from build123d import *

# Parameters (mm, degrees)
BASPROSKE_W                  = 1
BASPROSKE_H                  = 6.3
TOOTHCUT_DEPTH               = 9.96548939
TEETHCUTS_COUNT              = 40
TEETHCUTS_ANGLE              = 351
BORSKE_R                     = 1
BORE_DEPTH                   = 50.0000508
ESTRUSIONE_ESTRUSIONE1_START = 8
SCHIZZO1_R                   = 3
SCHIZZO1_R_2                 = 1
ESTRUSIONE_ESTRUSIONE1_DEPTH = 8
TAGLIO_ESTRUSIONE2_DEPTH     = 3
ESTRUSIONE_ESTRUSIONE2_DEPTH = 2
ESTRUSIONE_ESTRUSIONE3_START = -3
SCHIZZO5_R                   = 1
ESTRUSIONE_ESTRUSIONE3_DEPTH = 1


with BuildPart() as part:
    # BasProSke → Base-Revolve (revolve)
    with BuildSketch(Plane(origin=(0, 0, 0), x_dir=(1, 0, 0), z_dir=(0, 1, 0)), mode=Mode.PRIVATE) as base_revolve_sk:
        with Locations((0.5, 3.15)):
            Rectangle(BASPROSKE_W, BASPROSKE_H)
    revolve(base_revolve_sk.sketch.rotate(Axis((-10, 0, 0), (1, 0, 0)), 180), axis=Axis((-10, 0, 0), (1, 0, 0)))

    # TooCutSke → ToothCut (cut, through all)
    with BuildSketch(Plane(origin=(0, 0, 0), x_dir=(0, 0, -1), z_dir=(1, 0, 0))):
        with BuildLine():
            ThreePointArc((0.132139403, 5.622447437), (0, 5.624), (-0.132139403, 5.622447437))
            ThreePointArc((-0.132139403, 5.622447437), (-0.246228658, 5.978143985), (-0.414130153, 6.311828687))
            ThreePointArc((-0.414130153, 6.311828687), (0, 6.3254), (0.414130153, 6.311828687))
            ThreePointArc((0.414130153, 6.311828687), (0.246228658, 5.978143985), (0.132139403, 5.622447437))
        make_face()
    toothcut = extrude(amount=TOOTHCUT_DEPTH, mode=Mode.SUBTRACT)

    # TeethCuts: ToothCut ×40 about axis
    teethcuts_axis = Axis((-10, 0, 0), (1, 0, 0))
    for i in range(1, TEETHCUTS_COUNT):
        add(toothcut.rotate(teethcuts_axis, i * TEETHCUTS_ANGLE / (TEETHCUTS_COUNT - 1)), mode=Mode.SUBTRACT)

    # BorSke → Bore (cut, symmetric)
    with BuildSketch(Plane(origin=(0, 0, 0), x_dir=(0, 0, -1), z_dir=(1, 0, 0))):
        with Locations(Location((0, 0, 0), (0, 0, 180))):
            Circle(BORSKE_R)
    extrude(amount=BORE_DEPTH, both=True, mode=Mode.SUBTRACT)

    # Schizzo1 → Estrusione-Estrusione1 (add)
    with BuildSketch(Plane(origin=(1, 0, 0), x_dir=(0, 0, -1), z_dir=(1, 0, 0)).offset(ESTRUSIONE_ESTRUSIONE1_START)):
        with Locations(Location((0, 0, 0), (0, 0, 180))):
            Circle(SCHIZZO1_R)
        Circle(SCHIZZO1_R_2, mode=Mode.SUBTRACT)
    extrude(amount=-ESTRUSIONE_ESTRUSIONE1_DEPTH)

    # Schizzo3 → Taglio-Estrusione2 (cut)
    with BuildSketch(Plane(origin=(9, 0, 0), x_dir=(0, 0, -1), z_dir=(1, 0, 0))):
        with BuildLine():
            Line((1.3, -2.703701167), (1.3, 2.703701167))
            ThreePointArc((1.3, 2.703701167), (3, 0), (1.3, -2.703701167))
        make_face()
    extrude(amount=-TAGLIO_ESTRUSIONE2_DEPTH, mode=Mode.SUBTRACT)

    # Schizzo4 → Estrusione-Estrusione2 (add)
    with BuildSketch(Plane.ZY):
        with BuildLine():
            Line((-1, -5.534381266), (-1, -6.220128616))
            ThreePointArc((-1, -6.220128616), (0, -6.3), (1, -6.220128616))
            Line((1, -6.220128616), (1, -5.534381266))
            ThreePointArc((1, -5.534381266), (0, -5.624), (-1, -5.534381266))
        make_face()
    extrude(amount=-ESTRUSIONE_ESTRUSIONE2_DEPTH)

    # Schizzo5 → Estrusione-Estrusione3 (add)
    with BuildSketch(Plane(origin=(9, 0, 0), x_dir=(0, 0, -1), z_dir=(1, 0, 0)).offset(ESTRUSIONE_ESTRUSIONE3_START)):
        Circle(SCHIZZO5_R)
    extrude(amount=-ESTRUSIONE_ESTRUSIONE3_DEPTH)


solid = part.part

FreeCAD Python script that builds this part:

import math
import FreeCAD as App
import Part
import Sketcher

V = App.Vector


def add_polygon(sketch, points):
    """Adds a closed chain of lines whose ends are joined by coincident constraints."""
    first, n = sketch.GeometryCount, len(points)
    for a, b in zip(points, points[1:] + points[:1]):
        sketch.addGeometry(Part.LineSegment(App.Vector(*a, 0), App.Vector(*b, 0)), False)
    for i in range(n):
        sketch.addConstraint(Sketcher.Constraint("Coincident", first + i, 2, first + (i + 1) % n, 1))

doc = App.newDocument("Part")
params = doc.addObject("Spreadsheet::Sheet", "Params")
for row, (alias, value) in enumerate([
    ("sketch1_width", "1 mm"),
    ("sketch1_height", "6.3 mm"),
    ("revolution_angle", "360 deg"),
    ("sketch2_radius", "2.4 mm"),
    ("sketch3_diameter", "2 mm"),
    ("pocket2_length", "100.000102 mm"),
    ("sketch4_diameter", "6 mm"),
    ("sketch4_diameter2", "2 mm"),
    ("pad1_length", "8 mm"),
    ("sketch5_radius", "3 mm"),
    ("pocket3_length", "3 mm"),
    ("sketch6_radius", "6.3 mm"),
    ("pad2_length", "2 mm"),
    ("sketch7_diameter", "2 mm"),
    ("pad3_length", "1 mm"),
], start=1):
    params.set(f"A{row}", alias)
    params.set(f"B{row}", "=" + value)
    params.setAlias(f"B{row}", alias)

body = doc.addObject("PartDesign::Body", "Body")

# Sketch on XZ plane
sketch1 = doc.addObject("Sketcher::SketchObject", "Sketch")
body.addObject(sketch1)
sketch1.AttachmentSupport = (doc.XZ_Plane, [""])
sketch1.MapMode = "FlatFace"
add_polygon(sketch1, [(0, -6.3), (0, 0), (1, 0), (1, -6.3)])  # lines 0-3
sketch1.addConstraint([
    Sketcher.Constraint("Vertical", 0),
    Sketcher.Constraint("Horizontal", 1),
    Sketcher.Constraint("Vertical", 2),
    Sketcher.Constraint("Horizontal", 3),
    Sketcher.Constraint("Coincident", 0, 2, -1, 1),
    Sketcher.Constraint("DistanceX", 1, 1, 1, 2, 1.0),
    Sketcher.Constraint("DistanceY", 0, 1, 0, 2, 6.3),
])
sketch1.setExpression("Constraints[9]", "Params.sketch1_width")
sketch1.setExpression("Constraints[10]", "Params.sketch1_height")
revolution = doc.addObject("PartDesign::Revolution", "Revolution")
body.addObject(revolution)
revolution.Profile = sketch1
revolution.ReferenceAxis = (sketch1, ["H_Axis"])
revolution.setExpression("Angle", "Params.revolution_angle")

# Sketch on YZ plane
sketch2 = doc.addObject("Sketcher::SketchObject", "Sketch001")
body.addObject(sketch2)
sketch2.AttachmentSupport = (doc.YZ_Plane, [""])
sketch2.MapMode = "FlatFace"
sketch2.addGeometry([
    Part.ArcOfCircle(Part.Circle(V(0, 0, 0), V(0, 0, 1), 5.62), math.radians(-1.35), math.radians(1.35)),
    Part.ArcOfCircle(Part.Circle(V(5.07, -2.47, 0), V(0, 0, 1), 2.4), math.radians(58.83), math.radians(76.68)),
    Part.ArcOfCircle(Part.Circle(V(0, 0, 0), V(0, 0, 1), 6.33), math.radians(-3.75), math.radians(3.75)),
    Part.ArcOfCircle(Part.Circle(V(5.07, 2.47, 0), V(0, 0, 1), 2.4), math.radians(-76.68), math.radians(-58.83)),
], False)
sketch2.addConstraint([
    Sketcher.Constraint("Coincident", 0, 1, 1, 2),
    Sketcher.Constraint("Coincident", 1, 1, 2, 1),
    Sketcher.Constraint("Coincident", 2, 2, 3, 2),
    Sketcher.Constraint("Coincident", 3, 1, 0, 2),
    Sketcher.Constraint("Coincident", 0, 3, -1, 1),
    Sketcher.Constraint("Coincident", 2, 3, -1, 1),
    Sketcher.Constraint("Equal", 1, 3),
    Sketcher.Constraint("Symmetric", 1, 3, 3, 3, -1),
    Sketcher.Constraint("Radius", 1, 2.4),
    Sketcher.Constraint("Radius", 0, 5.624001),
    Sketcher.Constraint("Radius", 2, 6.3254),
    Sketcher.Constraint("DistanceY", 0, 1, -1, 1, 0.132139),
    Sketcher.Constraint("DistanceX", -1, 1, 1, 1, 6.311829),
])
sketch2.setExpression("Constraints[8]", "Params.sketch2_radius")
pocket1 = doc.addObject("PartDesign::Pocket", "Pocket")
body.addObject(pocket1)
pocket1.Profile = sketch2
pocket1.Type = "ThroughAll"
pocket1.Reversed = True
doc.recompute()

polarpattern = doc.addObject("PartDesign::PolarPattern", "PolarPattern")
body.addObject(polarpattern)
polarpattern.Originals = [pocket1]
polarpattern.Axis = (doc.X_Axis, [""])
polarpattern.Angle = 360
polarpattern.Occurrences = 40
body.Tip = polarpattern

# Sketch on YZ plane
sketch3 = doc.addObject("Sketcher::SketchObject", "Sketch002")
body.addObject(sketch3)
sketch3.AttachmentSupport = (doc.YZ_Plane, [""])
sketch3.MapMode = "FlatFace"
sketch3.addGeometry(Part.Circle(V(0, 0, 0), V(0, 0, 1), 1), False)
sketch3.addConstraint([
    Sketcher.Constraint("Coincident", 0, 3, -1, 1),
    Sketcher.Constraint("Diameter", 0, 2.0),
])
sketch3.setExpression("Constraints[1]", "Params.sketch3_diameter")
pocket2 = doc.addObject("PartDesign::Pocket", "Pocket001")
body.addObject(pocket2)
pocket2.Profile = sketch3
pocket2.setExpression("Length", "Params.pocket2_length")
pocket2.Midplane = True

# Sketch on YZ plane
sketch4 = doc.addObject("Sketcher::SketchObject", "Sketch003")
body.addObject(sketch4)
sketch4.AttachmentSupport = (doc.YZ_Plane, [""])
sketch4.MapMode = "FlatFace"
sketch4.AttachmentOffset = App.Placement(V(0, 0, 9), App.Rotation())
sketch4.addGeometry([
    Part.Circle(V(0, 0, 0), V(0, 0, 1), 3),
    Part.Circle(V(0, 0, 0), V(0, 0, 1), 1),
], False)
sketch4.addConstraint([
    Sketcher.Constraint("Coincident", 0, 3, -1, 1),
    Sketcher.Constraint("Coincident", 1, 3, -1, 1),
    Sketcher.Constraint("Diameter", 0, 6.0),
    Sketcher.Constraint("Diameter", 1, 2.0),
])
sketch4.setExpression("Constraints[2]", "Params.sketch4_diameter")
sketch4.setExpression("Constraints[3]", "Params.sketch4_diameter2")
pad1 = doc.addObject("PartDesign::Pad", "Pad")
body.addObject(pad1)
pad1.Profile = sketch4
pad1.setExpression("Length", "Params.pad1_length")
pad1.Reversed = True

# Sketch on YZ plane
sketch5 = doc.addObject("Sketcher::SketchObject", "Sketch004")
body.addObject(sketch5)
sketch5.AttachmentSupport = (doc.YZ_Plane, [""])
sketch5.MapMode = "FlatFace"
sketch5.AttachmentOffset = App.Placement(V(0, 0, 9), App.Rotation())
sketch5.addGeometry([
    Part.LineSegment(V(2.7, -1.3, 0), V(-2.7, -1.3, 0)),
    Part.ArcOfCircle(Part.Circle(V(0, 0, 0), V(0, 0, 1), 3), math.radians(-154), math.radians(-26)),
], False)
sketch5.addConstraint([
    Sketcher.Constraint("Coincident", 0, 1, 1, 2),
    Sketcher.Constraint("Coincident", 1, 1, 0, 2),
    Sketcher.Constraint("Horizontal", 0),
    Sketcher.Constraint("Coincident", 1, 3, -1, 1),
    Sketcher.Constraint("Radius", 1, 3.0),
    Sketcher.Constraint("DistanceY", 0, 1, -1, 1, 1.3),
])
sketch5.setExpression("Constraints[4]", "Params.sketch5_radius")
pocket3 = doc.addObject("PartDesign::Pocket", "Pocket002")
body.addObject(pocket3)
pocket3.Profile = sketch5
pocket3.setExpression("Length", "Params.pocket3_length")

# Sketch on YZ plane
sketch6 = doc.addObject("Sketcher::SketchObject", "Sketch005")
body.addObject(sketch6)
sketch6.AttachmentSupport = (doc.YZ_Plane, [""])
sketch6.MapMode = "FlatFace"
sketch6.addGeometry([
    Part.LineSegment(V(-5.5, -1, 0), V(-6.2, -1, 0)),
    Part.ArcOfCircle(Part.Circle(V(0, 0, 0), V(0, 0, 1), 6.3), math.radians(170.87), math.radians(189.13)),
    Part.LineSegment(V(-6.2, 1, 0), V(-5.5, 1, 0)),
    Part.ArcOfCircle(Part.Circle(V(0, 0, 0), V(0, 0, 1), 5.6), math.radians(170), math.radians(190)),
], False)
sketch6.addConstraint([
    Sketcher.Constraint("Coincident", 0, 2, 1, 2),
    Sketcher.Constraint("Coincident", 1, 1, 2, 1),
    Sketcher.Constraint("Coincident", 2, 2, 3, 1),
    Sketcher.Constraint("Coincident", 3, 2, 0, 1),
    Sketcher.Constraint("Horizontal", 0),
    Sketcher.Constraint("Horizontal", 2),
    Sketcher.Constraint("Coincident", 1, 3, -1, 1),
    Sketcher.Constraint("Coincident", 3, 3, -1, 1),
    Sketcher.Constraint("Vertical", 0, 2, 1, 1),
    Sketcher.Constraint("Radius", 1, 6.3),
    Sketcher.Constraint("DistanceY", 0, 2, -1, 1, 1.0),
    Sketcher.Constraint("Radius", 3, 5.624),
])
sketch6.setExpression("Constraints[9]", "Params.sketch6_radius")
pad2 = doc.addObject("PartDesign::Pad", "Pad001")
body.addObject(pad2)
pad2.Profile = sketch6
pad2.setExpression("Length", "Params.pad2_length")

# Sketch on YZ plane
sketch7 = doc.addObject("Sketcher::SketchObject", "Sketch006")
body.addObject(sketch7)
sketch7.AttachmentSupport = (doc.YZ_Plane, [""])
sketch7.MapMode = "FlatFace"
sketch7.AttachmentOffset = App.Placement(V(0, 0, 6), App.Rotation())
sketch7.addGeometry(Part.Circle(V(0, 0, 0), V(0, 0, 1), 1), False)
sketch7.addConstraint([
    Sketcher.Constraint("Coincident", 0, 3, -1, 1),
    Sketcher.Constraint("Diameter", 0, 2.0),
])
sketch7.setExpression("Constraints[1]", "Params.sketch7_diameter")
pad3 = doc.addObject("PartDesign::Pad", "Pad002")
body.addObject(pad3)
pad3.Profile = sketch7
pad3.setExpression("Length", "Params.pad3_length")
pad3.Reversed = True

doc.recompute()
